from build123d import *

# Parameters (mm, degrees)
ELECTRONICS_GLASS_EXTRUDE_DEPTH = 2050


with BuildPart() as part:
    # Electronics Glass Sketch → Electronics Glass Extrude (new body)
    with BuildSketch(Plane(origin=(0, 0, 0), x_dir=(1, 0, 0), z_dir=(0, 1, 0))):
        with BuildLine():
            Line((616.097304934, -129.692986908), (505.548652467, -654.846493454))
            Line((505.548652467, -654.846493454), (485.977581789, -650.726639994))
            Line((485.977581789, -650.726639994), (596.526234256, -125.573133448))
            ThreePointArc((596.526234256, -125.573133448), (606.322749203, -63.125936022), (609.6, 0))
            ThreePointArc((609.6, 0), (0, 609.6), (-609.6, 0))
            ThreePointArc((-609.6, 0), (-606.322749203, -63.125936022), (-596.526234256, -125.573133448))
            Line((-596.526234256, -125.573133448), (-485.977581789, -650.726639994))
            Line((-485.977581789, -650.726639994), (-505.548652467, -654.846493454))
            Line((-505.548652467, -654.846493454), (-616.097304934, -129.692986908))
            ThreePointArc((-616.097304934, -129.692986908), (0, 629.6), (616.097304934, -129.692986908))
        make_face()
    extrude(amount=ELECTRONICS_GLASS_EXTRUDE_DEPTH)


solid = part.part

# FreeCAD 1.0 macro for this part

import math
import FreeCAD as App
import Part
import Sketcher
from FreeCAD import Vector
Q = App.Units.Quantity

doc = App.newDocument("Part")
body = doc.addObject("PartDesign::Body", "Body")

# Sketch on XZ plane
sketch1 = doc.addObject("Sketcher::SketchObject", "Sketch")
body.addObject(sketch1)
sketch1.AttachmentSupport = (doc.XZ_Plane, [""])
sketch1.MapMode = "FlatFace"
sketch1.addGeometry([
    Part.LineSegment(Vector(506, 655, 0), Vector(616, 130, 0)),  # 0
    Part.ArcOfCircle(Part.Circle(Vector(0, 0, 0), Vector(0, 0, 1), 630), math.radians(168), math.radians(372)),  # 1
    Part.LineSegment(Vector(-616, 130, 0), Vector(-506, 655, 0)),  # 2
    Part.LineSegment(Vector(-506, 655, 0), Vector(-486, 651, 0)),  # 3
    Part.LineSegment(Vector(-486, 651, 0), Vector(-597, 126, 0)),  # 4
    Part.ArcOfCircle(Part.Circle(Vector(0, 0, 0), Vector(0, 0, 1), 610), math.radians(168.11), math.radians(180)),  # 5
    Part.ArcOfCircle(Part.Circle(Vector(0, 0, 0), Vector(0, 0, 1), 610), math.radians(180), math.radians(360)),  # 6
    Part.ArcOfCircle(Part.Circle(Vector(0, 0, 0), Vector(0, 0, 1), 610), math.radians(0), math.radians(11.89)),  # 7
    Part.LineSegment(Vector(597, 126, 0), Vector(486, 651, 0)),  # 8
    Part.LineSegment(Vector(486, 651, 0), Vector(506, 655, 0)),  # 9
], False)
sketch1.addConstraint([
    Sketcher.Constraint("Tangent", 0, 2, 1, 2),
    Sketcher.Constraint("Tangent", 1, 1, 2, 1),
    Sketcher.Constraint("Coincident", 2, 2, 3, 1),
    Sketcher.Constraint("Coincident", 3, 2, 4, 1),
    Sketcher.Constraint("Tangent", 4, 2, 5, 1),
    Sketcher.Constraint("Coincident", 5, 2, 6, 1),
    Sketcher.Constraint("Coincident", 6, 2, 7, 1),
    Sketcher.Constraint("Tangent", 7, 2, 8, 1),
    Sketcher.Constraint("Coincident", 8, 2, 9, 1),
    Sketcher.Constraint("Coincident", 9, 2, 0, 1),
    Sketcher.Constraint("Coincident", 1, 3, -1, 1),
    Sketcher.Constraint("Coincident", 5, 3, -1, 1),
    Sketcher.Constraint("Coincident", 6, 3, -1, 1),
    Sketcher.Constraint("Coincident", 7, 3, -1, 1),
    Sketcher.Constraint("Symmetric", 3, 2, 8, 2, -2),
    Sketcher.Constraint("Symmetric", 2, 2, 9, 2, -2),
    Sketcher.Constraint("PointOnObject", 5, 2, -1),
    Sketcher.Constraint("PointOnObject", 6, 2, -1),
    Sketcher.Constraint("Perpendicular", 2, 3),
    Sketcher.Constraint("Perpendicular", 3, 4),
    Sketcher.Constraint("Radius", 1, Q("629.6 mm")),
    Sketcher.Constraint("Radius", 5, Q("609.6 mm")),
    Sketcher.Constraint("DistanceX", 3, 2, -1, 1, Q("485.977582 mm")),
    Sketcher.Constraint("DistanceY", -1, 1, 3, 2, Q("650.72664 mm")),
])
pad1 = doc.addObject("PartDesign::Pad", "Pad")
body.addObject(pad1)
pad1.Profile = sketch1
pad1.Length = 2050
pad1.Reversed = True

doc.recompute()
